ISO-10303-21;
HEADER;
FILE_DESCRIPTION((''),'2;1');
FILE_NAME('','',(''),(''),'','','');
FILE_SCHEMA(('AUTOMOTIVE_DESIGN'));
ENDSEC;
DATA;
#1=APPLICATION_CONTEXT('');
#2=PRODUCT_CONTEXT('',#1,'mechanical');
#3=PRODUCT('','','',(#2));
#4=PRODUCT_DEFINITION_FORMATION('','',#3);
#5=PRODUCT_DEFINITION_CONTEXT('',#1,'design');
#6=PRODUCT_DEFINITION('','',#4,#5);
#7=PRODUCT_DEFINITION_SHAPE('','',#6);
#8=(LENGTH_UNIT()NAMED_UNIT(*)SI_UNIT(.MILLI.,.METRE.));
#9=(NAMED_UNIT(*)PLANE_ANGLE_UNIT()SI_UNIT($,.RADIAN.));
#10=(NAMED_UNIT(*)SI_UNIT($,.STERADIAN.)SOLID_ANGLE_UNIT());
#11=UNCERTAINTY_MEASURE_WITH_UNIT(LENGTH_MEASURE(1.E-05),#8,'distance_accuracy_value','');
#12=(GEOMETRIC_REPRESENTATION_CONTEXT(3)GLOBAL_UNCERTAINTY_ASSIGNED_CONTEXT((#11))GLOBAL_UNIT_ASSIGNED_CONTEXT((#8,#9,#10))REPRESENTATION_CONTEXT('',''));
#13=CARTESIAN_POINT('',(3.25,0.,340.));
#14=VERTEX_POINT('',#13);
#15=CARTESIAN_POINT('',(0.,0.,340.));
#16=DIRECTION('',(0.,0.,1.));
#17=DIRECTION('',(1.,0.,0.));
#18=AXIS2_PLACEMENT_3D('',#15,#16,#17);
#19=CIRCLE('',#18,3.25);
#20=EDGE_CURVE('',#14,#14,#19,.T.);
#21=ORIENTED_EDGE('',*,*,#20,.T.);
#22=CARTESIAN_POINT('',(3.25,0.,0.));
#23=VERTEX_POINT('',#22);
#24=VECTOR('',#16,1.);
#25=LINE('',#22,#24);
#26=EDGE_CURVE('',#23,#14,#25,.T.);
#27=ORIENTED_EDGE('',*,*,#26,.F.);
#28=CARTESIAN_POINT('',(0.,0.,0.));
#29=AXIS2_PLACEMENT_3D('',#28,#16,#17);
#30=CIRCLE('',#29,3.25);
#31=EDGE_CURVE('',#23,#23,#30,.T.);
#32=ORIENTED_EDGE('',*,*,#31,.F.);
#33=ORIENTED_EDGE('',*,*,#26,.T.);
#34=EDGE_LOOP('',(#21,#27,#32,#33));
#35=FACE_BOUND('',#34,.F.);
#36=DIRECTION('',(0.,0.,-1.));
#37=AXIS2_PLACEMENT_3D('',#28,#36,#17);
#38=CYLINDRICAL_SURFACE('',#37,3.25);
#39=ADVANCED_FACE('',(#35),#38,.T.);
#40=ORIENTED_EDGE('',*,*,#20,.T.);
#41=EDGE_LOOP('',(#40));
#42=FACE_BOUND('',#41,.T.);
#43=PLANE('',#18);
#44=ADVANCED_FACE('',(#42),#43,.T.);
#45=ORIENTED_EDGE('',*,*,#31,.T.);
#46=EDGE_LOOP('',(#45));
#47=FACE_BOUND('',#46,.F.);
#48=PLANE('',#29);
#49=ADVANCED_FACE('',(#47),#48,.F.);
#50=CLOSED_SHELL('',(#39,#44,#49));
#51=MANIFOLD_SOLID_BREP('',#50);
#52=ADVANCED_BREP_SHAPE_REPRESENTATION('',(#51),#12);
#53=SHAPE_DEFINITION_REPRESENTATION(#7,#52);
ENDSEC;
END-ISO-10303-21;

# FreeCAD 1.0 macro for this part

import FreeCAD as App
import Part
import Sketcher
Q = App.Units.Quantity

doc = App.newDocument("Part")
body = doc.addObject("PartDesign::Body", "Body")

# Sketch on XY plane
sketch1 = body.newObject("Sketcher::SketchObject", "Sketch")
sketch1.AttachmentSupport = (doc.getObject("XY_Plane"), [""])
sketch1.MapMode = "FlatFace"
sketch1.addGeometry(Part.Circle(App.Vector(0, 0, 0), App.Vector(0, 0, 1), 3.2), False)
sketch1.addConstraint([
    Sketcher.Constraint("Coincident", 0, 3, -1, 1),
    Sketcher.Constraint("Diameter", 0, Q("6.5 mm")),
])
pad1 = body.newObject("PartDesign::Pad", "Pad")
pad1.Profile = sketch1
pad1.Length = 340

doc.recompute()
